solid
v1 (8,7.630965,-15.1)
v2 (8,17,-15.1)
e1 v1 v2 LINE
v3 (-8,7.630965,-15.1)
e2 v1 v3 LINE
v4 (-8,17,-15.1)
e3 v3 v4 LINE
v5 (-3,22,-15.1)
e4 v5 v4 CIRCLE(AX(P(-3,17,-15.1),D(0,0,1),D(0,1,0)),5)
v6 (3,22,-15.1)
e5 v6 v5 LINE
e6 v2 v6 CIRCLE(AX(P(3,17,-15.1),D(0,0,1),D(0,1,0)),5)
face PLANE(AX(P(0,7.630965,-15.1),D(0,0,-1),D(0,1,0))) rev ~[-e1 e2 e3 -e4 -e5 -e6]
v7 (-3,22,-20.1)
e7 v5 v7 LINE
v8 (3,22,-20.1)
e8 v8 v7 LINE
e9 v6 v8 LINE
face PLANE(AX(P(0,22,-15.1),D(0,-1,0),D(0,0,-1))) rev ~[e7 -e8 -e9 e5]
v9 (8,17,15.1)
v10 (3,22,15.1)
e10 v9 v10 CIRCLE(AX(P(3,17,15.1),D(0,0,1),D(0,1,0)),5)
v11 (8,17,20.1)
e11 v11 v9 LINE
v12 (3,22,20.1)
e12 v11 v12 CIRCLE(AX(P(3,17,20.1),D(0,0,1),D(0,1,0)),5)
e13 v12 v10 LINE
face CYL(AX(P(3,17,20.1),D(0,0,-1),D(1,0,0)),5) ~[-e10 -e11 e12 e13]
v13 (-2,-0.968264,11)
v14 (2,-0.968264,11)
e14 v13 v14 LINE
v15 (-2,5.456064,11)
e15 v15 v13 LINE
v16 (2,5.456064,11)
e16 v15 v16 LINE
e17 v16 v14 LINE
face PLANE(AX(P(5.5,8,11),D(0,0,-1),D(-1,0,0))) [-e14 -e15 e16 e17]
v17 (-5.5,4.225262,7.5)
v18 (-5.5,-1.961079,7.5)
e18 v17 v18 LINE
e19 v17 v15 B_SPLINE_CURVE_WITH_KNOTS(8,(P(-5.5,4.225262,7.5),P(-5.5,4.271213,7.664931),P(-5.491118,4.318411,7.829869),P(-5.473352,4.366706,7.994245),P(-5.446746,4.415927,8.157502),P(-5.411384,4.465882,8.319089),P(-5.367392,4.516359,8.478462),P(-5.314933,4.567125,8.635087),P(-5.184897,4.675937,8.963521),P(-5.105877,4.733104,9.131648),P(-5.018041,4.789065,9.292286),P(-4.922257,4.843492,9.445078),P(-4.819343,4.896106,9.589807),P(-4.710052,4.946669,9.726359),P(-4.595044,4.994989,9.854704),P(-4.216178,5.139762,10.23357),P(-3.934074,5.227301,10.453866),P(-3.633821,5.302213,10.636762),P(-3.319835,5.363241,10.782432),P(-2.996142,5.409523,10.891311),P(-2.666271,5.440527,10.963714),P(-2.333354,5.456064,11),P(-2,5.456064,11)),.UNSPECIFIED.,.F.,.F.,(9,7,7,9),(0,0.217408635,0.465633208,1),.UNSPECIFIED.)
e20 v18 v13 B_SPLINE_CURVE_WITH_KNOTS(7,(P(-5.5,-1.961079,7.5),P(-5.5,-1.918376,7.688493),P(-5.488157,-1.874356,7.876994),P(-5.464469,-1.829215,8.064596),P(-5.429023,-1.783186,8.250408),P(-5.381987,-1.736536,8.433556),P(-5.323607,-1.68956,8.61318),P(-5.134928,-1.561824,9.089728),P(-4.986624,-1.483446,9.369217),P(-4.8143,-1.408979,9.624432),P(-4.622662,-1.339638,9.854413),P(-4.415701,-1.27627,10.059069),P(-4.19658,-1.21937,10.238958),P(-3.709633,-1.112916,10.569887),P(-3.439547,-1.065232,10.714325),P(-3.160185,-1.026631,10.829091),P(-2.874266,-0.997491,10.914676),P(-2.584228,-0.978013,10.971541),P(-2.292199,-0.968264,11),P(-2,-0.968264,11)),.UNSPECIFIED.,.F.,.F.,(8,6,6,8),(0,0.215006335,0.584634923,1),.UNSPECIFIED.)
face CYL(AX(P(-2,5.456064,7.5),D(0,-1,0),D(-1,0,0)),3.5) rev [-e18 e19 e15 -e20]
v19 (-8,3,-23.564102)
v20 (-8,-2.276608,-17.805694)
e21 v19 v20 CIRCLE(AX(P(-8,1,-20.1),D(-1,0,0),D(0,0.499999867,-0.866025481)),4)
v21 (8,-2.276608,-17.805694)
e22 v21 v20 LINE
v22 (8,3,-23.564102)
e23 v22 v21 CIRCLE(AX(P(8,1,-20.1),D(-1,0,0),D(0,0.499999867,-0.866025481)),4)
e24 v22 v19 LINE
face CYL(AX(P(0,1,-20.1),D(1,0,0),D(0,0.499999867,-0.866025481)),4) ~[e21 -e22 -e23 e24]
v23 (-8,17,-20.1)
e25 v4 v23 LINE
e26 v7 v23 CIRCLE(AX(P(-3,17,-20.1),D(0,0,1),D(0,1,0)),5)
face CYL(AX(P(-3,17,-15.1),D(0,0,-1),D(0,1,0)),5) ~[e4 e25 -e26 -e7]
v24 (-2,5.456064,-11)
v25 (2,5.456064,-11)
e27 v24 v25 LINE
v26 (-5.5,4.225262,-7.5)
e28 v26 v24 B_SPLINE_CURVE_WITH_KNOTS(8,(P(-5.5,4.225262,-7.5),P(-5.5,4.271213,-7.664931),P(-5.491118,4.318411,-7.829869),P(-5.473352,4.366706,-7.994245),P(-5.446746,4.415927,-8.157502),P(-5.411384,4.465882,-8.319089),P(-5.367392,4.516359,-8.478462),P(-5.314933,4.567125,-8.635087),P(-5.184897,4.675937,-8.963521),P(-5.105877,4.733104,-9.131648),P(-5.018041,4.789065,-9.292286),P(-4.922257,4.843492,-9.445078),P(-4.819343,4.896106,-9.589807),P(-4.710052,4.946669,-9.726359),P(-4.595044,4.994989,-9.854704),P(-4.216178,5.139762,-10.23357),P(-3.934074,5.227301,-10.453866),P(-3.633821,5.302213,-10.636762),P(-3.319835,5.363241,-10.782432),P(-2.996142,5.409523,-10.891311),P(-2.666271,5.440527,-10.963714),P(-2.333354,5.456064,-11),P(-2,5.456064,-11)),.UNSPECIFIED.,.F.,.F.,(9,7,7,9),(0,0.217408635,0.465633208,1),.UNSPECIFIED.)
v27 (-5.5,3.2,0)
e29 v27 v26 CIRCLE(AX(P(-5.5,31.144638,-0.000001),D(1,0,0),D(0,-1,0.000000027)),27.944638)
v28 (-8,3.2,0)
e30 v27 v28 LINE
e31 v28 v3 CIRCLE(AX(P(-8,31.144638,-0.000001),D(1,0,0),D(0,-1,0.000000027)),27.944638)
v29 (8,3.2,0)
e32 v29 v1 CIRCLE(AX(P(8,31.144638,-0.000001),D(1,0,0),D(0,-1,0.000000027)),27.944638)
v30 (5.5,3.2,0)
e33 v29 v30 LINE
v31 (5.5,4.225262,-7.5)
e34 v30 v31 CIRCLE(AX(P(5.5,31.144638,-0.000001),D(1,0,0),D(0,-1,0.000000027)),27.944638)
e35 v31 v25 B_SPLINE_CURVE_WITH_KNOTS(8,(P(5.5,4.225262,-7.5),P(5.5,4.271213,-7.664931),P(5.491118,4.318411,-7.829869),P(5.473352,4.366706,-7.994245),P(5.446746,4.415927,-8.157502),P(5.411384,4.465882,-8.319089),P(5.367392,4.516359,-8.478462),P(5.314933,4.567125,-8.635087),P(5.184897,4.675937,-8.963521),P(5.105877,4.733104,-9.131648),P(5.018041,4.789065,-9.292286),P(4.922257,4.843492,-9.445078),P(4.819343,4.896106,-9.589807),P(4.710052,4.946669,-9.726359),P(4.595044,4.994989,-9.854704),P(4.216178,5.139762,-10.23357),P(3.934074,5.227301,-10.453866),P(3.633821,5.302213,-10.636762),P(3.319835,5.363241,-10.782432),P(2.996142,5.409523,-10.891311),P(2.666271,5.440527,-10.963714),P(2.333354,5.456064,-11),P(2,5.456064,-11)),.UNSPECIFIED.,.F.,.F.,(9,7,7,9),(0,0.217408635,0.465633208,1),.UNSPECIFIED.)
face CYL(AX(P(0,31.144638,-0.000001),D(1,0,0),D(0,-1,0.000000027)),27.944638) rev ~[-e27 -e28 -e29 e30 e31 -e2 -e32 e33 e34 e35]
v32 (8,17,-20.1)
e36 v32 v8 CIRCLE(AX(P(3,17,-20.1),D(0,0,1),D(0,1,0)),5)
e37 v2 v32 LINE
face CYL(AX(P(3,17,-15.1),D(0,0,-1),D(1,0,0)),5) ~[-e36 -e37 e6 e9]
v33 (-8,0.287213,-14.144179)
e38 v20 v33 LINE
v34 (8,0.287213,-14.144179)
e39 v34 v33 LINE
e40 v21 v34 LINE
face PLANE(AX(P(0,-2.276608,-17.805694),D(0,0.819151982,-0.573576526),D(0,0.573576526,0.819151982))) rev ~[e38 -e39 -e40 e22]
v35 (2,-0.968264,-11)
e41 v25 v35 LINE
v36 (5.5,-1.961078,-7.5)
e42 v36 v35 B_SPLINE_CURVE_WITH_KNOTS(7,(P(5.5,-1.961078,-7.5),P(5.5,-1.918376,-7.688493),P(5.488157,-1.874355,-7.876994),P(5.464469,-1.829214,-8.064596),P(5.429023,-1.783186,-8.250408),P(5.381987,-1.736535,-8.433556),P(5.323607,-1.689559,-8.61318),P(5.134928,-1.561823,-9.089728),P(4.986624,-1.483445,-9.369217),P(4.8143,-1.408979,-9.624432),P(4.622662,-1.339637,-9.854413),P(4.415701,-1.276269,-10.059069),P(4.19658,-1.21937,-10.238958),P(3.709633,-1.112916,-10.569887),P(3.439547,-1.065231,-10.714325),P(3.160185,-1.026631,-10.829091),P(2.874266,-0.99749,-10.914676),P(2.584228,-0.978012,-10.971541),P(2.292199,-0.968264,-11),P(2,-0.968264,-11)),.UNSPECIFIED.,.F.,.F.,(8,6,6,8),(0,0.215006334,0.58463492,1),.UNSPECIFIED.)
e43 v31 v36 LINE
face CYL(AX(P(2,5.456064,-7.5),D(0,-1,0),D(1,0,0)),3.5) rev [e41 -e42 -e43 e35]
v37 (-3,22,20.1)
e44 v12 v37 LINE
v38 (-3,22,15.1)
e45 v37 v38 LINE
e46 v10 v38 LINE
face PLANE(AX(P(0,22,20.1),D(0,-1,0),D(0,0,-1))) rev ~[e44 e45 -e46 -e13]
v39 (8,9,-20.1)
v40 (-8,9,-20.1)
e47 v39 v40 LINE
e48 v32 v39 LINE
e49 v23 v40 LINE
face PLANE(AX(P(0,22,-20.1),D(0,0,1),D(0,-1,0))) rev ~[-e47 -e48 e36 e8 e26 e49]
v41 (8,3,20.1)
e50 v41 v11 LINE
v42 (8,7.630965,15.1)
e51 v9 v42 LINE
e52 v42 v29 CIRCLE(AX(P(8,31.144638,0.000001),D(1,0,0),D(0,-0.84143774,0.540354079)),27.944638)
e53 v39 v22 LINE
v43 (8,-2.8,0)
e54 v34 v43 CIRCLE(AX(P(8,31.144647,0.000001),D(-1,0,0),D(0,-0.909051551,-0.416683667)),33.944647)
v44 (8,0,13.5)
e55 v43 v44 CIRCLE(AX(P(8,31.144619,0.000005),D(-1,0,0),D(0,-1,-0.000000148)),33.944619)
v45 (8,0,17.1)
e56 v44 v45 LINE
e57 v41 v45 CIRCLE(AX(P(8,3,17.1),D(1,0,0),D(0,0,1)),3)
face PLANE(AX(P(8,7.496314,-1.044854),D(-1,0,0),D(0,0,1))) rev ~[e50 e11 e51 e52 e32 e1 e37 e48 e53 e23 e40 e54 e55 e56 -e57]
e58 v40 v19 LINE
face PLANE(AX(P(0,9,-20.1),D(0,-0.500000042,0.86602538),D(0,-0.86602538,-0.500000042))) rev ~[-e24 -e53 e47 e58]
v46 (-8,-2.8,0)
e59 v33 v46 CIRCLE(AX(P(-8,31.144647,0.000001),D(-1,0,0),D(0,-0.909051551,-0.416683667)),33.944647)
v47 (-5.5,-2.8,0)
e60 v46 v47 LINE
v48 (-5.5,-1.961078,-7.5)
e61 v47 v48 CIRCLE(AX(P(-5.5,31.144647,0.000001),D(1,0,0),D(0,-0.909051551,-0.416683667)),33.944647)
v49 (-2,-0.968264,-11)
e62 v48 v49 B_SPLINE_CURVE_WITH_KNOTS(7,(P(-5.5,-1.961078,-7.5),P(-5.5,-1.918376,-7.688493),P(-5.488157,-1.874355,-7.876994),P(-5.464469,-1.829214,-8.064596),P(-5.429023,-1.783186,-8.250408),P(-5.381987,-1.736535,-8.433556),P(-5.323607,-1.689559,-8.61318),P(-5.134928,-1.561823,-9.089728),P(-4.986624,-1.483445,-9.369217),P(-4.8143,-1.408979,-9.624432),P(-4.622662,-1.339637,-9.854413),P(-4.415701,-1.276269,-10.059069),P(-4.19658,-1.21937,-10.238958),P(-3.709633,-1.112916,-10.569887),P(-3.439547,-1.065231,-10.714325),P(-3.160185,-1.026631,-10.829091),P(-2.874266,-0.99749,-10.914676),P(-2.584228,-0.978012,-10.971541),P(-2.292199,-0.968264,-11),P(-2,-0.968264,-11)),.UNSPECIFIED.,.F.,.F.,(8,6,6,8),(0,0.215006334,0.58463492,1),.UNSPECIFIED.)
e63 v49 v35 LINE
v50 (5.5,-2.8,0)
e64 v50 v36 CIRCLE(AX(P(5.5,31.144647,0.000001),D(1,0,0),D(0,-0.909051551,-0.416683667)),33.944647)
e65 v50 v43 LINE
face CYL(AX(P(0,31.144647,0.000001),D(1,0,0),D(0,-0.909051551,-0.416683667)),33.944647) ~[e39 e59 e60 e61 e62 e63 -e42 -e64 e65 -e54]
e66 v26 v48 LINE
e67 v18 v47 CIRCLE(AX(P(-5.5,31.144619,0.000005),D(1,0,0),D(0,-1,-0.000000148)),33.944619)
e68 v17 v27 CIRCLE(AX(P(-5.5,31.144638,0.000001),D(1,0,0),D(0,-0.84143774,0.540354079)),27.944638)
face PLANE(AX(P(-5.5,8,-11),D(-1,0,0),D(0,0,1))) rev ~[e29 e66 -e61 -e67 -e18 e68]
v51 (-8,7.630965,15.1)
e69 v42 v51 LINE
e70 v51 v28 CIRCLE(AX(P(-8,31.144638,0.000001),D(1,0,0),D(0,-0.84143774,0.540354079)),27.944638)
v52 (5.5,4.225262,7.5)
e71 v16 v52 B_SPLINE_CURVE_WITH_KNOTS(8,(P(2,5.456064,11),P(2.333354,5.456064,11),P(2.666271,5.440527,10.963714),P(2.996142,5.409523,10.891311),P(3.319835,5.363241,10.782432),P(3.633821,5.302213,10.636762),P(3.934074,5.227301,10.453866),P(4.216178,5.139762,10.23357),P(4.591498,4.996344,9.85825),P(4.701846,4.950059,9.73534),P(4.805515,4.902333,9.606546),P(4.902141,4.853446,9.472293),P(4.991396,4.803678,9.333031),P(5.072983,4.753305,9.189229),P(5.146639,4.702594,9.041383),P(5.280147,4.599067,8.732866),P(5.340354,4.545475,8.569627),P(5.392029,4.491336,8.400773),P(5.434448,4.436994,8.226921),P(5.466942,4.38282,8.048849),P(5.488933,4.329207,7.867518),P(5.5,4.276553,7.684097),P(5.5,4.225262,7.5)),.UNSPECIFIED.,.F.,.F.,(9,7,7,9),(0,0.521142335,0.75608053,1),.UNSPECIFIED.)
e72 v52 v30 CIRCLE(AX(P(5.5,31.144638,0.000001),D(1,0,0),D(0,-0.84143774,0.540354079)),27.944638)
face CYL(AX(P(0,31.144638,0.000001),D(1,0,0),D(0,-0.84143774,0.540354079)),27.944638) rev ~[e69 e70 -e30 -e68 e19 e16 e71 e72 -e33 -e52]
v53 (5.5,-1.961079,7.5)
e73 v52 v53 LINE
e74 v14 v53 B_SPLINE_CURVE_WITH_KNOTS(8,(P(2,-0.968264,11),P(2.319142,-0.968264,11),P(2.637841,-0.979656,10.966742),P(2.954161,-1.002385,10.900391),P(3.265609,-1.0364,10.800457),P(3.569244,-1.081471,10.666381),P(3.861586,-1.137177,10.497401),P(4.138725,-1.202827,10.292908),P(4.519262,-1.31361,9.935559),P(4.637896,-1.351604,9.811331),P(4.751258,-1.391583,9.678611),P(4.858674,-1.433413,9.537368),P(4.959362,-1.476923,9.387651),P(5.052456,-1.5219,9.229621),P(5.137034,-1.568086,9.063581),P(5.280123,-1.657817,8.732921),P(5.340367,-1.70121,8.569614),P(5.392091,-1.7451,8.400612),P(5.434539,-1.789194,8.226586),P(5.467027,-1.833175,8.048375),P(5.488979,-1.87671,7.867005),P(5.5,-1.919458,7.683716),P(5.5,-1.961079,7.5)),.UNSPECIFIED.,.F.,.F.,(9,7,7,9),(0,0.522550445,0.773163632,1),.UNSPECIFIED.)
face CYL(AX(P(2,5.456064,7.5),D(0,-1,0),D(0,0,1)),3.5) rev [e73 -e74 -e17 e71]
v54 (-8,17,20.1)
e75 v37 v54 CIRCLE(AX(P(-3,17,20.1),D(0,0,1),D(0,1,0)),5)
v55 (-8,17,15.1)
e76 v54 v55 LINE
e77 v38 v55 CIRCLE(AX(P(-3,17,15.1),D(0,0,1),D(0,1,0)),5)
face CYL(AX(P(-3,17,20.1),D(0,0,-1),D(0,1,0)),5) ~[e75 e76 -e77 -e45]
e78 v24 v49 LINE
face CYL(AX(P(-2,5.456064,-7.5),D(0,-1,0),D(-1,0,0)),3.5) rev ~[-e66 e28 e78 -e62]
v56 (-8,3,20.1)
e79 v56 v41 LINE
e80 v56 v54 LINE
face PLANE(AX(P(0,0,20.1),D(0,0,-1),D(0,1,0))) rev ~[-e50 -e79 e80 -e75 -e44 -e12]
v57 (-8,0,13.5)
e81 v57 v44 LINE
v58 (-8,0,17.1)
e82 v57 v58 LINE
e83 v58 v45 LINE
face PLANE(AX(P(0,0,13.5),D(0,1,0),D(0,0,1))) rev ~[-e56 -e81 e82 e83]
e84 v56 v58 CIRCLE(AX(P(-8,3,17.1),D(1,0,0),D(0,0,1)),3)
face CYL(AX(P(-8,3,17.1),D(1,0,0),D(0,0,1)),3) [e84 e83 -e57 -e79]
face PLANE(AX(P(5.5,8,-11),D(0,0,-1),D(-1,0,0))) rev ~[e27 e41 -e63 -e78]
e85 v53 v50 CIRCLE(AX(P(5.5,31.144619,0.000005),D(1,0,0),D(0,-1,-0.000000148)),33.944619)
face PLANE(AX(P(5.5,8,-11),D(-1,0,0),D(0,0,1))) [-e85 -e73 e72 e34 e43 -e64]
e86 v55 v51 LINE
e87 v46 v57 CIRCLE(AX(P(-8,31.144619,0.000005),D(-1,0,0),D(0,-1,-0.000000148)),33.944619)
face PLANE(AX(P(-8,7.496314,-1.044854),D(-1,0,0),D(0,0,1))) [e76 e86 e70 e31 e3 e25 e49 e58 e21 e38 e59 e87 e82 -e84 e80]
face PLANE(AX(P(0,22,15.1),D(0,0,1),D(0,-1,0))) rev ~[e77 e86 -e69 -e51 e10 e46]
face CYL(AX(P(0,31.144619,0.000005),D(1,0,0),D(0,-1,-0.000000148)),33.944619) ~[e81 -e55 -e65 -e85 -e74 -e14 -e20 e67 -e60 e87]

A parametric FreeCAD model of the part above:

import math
import FreeCAD as App
import Part
import Sketcher

V = App.Vector
Q = App.Units.Quantity


def edges_at(feature, points):
    """Names of the edges that pass closest to the given points."""
    edges = feature.Shape.Edges
    near = lambda p: min(range(len(edges)), key=lambda i: edges[i].distToShape(Part.Vertex(*p))[0])
    return sorted({f"Edge{near(p) + 1}" for p in points})


def add_polygon(sketch, points):
    """Adds a closed chain of lines whose ends are joined by coincident constraints."""
    first, n = sketch.GeometryCount, len(points)
    for a, b in zip(points, points[1:] + points[:1]):
        sketch.addGeometry(Part.LineSegment(App.Vector(*a, 0), App.Vector(*b, 0)), False)
    for i in range(n):
        sketch.addConstraint(Sketcher.Constraint("Coincident", first + i, 2, first + (i + 1) % n, 1))

doc = App.newDocument("Part")
body = doc.addObject("PartDesign::Body", "Body")

sketch1 = body.newObject("Sketcher::SketchObject", "Sketch")
sketch1.AttachmentSupport = (doc.getObject("YZ_Plane"), [""])
sketch1.MapMode = "FlatFace"
sketch1.addGeometry([
    Part.LineSegment(V(22, 20.1, 0), V(0, 20.1, 0)),
    Part.LineSegment(V(0, 20.1, 0), V(0, 13.5, 0)),
    Part.ArcOfCircle(Part.Circle(V(31.144619, 0.000005, 0), V(0, 0, 1), 33.944619), math.radians(156.565122), math.radians(180.000009)),
    Part.ArcOfCircle(Part.Circle(V(31.144647, 0.000001, 0), V(0, 0, 1), 33.944647), math.radians(-179.999998), math.radians(-155.37461)),
    Part.LineSegment(V(0.287213, -14.144179, 0), V(-2.276608, -17.805694, 0)),
    Part.ArcOfCircle(Part.Circle(V(1, -20.1, 0), V(0, 0, 1), 4), math.radians(145.000001), math.radians(299.999991)),
    Part.LineSegment(V(3, -23.564102, 0), V(9, -20.1, 0)),
    Part.LineSegment(V(9, -20.1, 0), V(22, -20.1, 0)),
    Part.LineSegment(V(22, -20.1, 0), V(22, -15.1, 0)),
    Part.LineSegment(V(22, -15.1, 0), V(7.630965, -15.1, 0)),
    Part.ArcOfCircle(Part.Circle(V(31.144638, -0.000001, 0), V(0, 0, 1), 27.944638), math.radians(179.999998), math.radians(212.707746)),
    Part.ArcOfCircle(Part.Circle(V(31.144638, 0.000001, 0), V(0, 0, 1), 27.944638), math.radians(147.292254), math.radians(180.000002)),
    Part.LineSegment(V(7.630965, 15.1, 0), V(22, 15.1, 0)),
    Part.LineSegment(V(22, 15.1, 0), V(22, 20.1, 0)),
], False)
sketch1.addConstraint([
    Sketcher.Constraint("Coincident", 0, 2, 1, 1),
    Sketcher.Constraint("Coincident", 1, 2, 2, 1),
    Sketcher.Constraint("Coincident", 2, 2, 3, 1),
    Sketcher.Constraint("Coincident", 3, 2, 4, 1),
    Sketcher.Constraint("Coincident", 4, 2, 5, 1),
    Sketcher.Constraint("Coincident", 5, 2, 6, 1),
    Sketcher.Constraint("Coincident", 6, 2, 7, 1),
    Sketcher.Constraint("Coincident", 7, 2, 8, 1),
    Sketcher.Constraint("Coincident", 8, 2, 9, 1),
    Sketcher.Constraint("Coincident", 9, 2, 10, 2),
    Sketcher.Constraint("Coincident", 10, 1, 11, 2),
    Sketcher.Constraint("Coincident", 11, 1, 12, 1),
    Sketcher.Constraint("Coincident", 12, 2, 13, 1),
    Sketcher.Constraint("Coincident", 13, 2, 0, 1),
    Sketcher.Constraint("Horizontal", 0),
    Sketcher.Constraint("Vertical", 1),
    Sketcher.Constraint("Horizontal", 7),
    Sketcher.Constraint("Vertical", 8),
    Sketcher.Constraint("Horizontal", 9),
    Sketcher.Constraint("Horizontal", 12),
    Sketcher.Constraint("Vertical", 13),
    Sketcher.Constraint("Coincident", 10, 3, 3, 3),
    Sketcher.Constraint("Coincident", 11, 3, 3, 3),
    Sketcher.Constraint("PointOnObject", 3, 3, -1),
    Sketcher.Constraint("PointOnObject", 0, 2, -2),
    Sketcher.Constraint("PointOnObject", 2, 2, -1),
    Sketcher.Constraint("PointOnObject", 10, 1, -1),
    Sketcher.Constraint("Radius", 5, Q("4 mm")),
    Sketcher.Constraint("DistanceX", 0, 2, 0, 1, Q("22 mm")),
    Sketcher.Constraint("DistanceX", 7, 1, 7, 2, Q("13 mm")),
    Sketcher.Constraint("DistanceY", 8, 1, 8, 2, Q("5 mm")),
    Sketcher.Constraint("DistanceY", 13, 1, 13, 2, Q("5 mm")),
    Sketcher.Constraint("DistanceY", 1, 2, 1, 1, Q("6.6 mm")),
    Sketcher.Constraint("DistanceX", -1, 1, 5, 3, Q("1 mm")),
    Sketcher.Constraint("DistanceX", -1, 1, 5, 2, Q("3 mm")),
    Sketcher.Constraint("DistanceX", -1, 1, 6, 2, Q("9 mm")),
    Sketcher.Constraint("DistanceY", 5, 3, 9, 2, Q("5 mm")),
    Sketcher.Constraint("DistanceX", 2, 2, 10, 1, Q("6 mm")),
    Sketcher.Constraint("DistanceY", 5, 3, -1, 1, Q("20.1 mm")),
    Sketcher.Constraint("DistanceY", -1, 1, 0, 2, Q("20.1 mm")),
    Sketcher.Constraint("DistanceX", 2, 2, -1, 1, Q("2.8 mm")),
    Sketcher.Constraint("Radius", 2, Q("33.944619 mm")),
    Sketcher.Constraint("Radius", 10, Q("27.944638 mm")),
    Sketcher.Constraint("DistanceY", 4, 2, 2, 3, Q("17.805699 mm")),
    Sketcher.Constraint("DistanceY", 3, 2, -1, 1, Q("14.144179 mm")),
])
pad1 = body.newObject("PartDesign::Pad", "Pad")
pad1.Profile = sketch1
pad1.Length = 16
pad1.Midplane = True
doc.recompute()

fillet = body.newObject("PartDesign::Fillet", "Fillet")
fillet.Base = (pad1, edges_at(pad1, [
    (-8, 22, 17.6),
    (-8, 22, -17.6),
    (8, 22, -17.6),
    (8, 22, 17.6),
]))
fillet.Radius = 5
doc.recompute()

fillet2 = body.newObject("PartDesign::Fillet", "Fillet001")
fillet2.Base = (fillet, edges_at(fillet, [(0, 0, 20.1)]))
fillet2.Radius = 3

sketch2 = body.newObject("Sketcher::SketchObject", "Sketch001")
sketch2.AttachmentSupport = (doc.getObject("XZ_Plane"), [""])
sketch2.MapMode = "FlatFace"
sketch2.AttachmentOffset = App.Placement(V(0, 0, -8), App.Rotation())
add_polygon(sketch2, [(6, 11), (6, -11), (-6, -11), (-6, 11)])
sketch2.addConstraint([
    Sketcher.Constraint("Vertical", 0),
    Sketcher.Constraint("Horizontal", 1),
    Sketcher.Constraint("Vertical", 2),
    Sketcher.Constraint("Horizontal", 3),
    Sketcher.Constraint("Symmetric", 0, 2, 2, 2, -1, 1),
    Sketcher.Constraint("DistanceX", 1, 2, 1, 1, Q("11 mm")),
    Sketcher.Constraint("DistanceY", 0, 2, 0, 1, Q("22 mm")),
])
pocket1 = body.newObject("PartDesign::Pocket", "Pocket")
pocket1.Profile = sketch2
pocket1.Type = "ThroughAll"
pocket1.Reversed = True
doc.recompute()

fillet3 = body.newObject("PartDesign::Fillet", "Fillet002")
fillet3.Base = (pocket1, edges_at(pocket1, [
    (-5.5, 2.244, -11),
    (5.5, 2.244, -11),
    (5.5, 2.244, 11),
    (-5.5, 2.244, 11),
]))
fillet3.Radius = 3.5

doc.recompute()
